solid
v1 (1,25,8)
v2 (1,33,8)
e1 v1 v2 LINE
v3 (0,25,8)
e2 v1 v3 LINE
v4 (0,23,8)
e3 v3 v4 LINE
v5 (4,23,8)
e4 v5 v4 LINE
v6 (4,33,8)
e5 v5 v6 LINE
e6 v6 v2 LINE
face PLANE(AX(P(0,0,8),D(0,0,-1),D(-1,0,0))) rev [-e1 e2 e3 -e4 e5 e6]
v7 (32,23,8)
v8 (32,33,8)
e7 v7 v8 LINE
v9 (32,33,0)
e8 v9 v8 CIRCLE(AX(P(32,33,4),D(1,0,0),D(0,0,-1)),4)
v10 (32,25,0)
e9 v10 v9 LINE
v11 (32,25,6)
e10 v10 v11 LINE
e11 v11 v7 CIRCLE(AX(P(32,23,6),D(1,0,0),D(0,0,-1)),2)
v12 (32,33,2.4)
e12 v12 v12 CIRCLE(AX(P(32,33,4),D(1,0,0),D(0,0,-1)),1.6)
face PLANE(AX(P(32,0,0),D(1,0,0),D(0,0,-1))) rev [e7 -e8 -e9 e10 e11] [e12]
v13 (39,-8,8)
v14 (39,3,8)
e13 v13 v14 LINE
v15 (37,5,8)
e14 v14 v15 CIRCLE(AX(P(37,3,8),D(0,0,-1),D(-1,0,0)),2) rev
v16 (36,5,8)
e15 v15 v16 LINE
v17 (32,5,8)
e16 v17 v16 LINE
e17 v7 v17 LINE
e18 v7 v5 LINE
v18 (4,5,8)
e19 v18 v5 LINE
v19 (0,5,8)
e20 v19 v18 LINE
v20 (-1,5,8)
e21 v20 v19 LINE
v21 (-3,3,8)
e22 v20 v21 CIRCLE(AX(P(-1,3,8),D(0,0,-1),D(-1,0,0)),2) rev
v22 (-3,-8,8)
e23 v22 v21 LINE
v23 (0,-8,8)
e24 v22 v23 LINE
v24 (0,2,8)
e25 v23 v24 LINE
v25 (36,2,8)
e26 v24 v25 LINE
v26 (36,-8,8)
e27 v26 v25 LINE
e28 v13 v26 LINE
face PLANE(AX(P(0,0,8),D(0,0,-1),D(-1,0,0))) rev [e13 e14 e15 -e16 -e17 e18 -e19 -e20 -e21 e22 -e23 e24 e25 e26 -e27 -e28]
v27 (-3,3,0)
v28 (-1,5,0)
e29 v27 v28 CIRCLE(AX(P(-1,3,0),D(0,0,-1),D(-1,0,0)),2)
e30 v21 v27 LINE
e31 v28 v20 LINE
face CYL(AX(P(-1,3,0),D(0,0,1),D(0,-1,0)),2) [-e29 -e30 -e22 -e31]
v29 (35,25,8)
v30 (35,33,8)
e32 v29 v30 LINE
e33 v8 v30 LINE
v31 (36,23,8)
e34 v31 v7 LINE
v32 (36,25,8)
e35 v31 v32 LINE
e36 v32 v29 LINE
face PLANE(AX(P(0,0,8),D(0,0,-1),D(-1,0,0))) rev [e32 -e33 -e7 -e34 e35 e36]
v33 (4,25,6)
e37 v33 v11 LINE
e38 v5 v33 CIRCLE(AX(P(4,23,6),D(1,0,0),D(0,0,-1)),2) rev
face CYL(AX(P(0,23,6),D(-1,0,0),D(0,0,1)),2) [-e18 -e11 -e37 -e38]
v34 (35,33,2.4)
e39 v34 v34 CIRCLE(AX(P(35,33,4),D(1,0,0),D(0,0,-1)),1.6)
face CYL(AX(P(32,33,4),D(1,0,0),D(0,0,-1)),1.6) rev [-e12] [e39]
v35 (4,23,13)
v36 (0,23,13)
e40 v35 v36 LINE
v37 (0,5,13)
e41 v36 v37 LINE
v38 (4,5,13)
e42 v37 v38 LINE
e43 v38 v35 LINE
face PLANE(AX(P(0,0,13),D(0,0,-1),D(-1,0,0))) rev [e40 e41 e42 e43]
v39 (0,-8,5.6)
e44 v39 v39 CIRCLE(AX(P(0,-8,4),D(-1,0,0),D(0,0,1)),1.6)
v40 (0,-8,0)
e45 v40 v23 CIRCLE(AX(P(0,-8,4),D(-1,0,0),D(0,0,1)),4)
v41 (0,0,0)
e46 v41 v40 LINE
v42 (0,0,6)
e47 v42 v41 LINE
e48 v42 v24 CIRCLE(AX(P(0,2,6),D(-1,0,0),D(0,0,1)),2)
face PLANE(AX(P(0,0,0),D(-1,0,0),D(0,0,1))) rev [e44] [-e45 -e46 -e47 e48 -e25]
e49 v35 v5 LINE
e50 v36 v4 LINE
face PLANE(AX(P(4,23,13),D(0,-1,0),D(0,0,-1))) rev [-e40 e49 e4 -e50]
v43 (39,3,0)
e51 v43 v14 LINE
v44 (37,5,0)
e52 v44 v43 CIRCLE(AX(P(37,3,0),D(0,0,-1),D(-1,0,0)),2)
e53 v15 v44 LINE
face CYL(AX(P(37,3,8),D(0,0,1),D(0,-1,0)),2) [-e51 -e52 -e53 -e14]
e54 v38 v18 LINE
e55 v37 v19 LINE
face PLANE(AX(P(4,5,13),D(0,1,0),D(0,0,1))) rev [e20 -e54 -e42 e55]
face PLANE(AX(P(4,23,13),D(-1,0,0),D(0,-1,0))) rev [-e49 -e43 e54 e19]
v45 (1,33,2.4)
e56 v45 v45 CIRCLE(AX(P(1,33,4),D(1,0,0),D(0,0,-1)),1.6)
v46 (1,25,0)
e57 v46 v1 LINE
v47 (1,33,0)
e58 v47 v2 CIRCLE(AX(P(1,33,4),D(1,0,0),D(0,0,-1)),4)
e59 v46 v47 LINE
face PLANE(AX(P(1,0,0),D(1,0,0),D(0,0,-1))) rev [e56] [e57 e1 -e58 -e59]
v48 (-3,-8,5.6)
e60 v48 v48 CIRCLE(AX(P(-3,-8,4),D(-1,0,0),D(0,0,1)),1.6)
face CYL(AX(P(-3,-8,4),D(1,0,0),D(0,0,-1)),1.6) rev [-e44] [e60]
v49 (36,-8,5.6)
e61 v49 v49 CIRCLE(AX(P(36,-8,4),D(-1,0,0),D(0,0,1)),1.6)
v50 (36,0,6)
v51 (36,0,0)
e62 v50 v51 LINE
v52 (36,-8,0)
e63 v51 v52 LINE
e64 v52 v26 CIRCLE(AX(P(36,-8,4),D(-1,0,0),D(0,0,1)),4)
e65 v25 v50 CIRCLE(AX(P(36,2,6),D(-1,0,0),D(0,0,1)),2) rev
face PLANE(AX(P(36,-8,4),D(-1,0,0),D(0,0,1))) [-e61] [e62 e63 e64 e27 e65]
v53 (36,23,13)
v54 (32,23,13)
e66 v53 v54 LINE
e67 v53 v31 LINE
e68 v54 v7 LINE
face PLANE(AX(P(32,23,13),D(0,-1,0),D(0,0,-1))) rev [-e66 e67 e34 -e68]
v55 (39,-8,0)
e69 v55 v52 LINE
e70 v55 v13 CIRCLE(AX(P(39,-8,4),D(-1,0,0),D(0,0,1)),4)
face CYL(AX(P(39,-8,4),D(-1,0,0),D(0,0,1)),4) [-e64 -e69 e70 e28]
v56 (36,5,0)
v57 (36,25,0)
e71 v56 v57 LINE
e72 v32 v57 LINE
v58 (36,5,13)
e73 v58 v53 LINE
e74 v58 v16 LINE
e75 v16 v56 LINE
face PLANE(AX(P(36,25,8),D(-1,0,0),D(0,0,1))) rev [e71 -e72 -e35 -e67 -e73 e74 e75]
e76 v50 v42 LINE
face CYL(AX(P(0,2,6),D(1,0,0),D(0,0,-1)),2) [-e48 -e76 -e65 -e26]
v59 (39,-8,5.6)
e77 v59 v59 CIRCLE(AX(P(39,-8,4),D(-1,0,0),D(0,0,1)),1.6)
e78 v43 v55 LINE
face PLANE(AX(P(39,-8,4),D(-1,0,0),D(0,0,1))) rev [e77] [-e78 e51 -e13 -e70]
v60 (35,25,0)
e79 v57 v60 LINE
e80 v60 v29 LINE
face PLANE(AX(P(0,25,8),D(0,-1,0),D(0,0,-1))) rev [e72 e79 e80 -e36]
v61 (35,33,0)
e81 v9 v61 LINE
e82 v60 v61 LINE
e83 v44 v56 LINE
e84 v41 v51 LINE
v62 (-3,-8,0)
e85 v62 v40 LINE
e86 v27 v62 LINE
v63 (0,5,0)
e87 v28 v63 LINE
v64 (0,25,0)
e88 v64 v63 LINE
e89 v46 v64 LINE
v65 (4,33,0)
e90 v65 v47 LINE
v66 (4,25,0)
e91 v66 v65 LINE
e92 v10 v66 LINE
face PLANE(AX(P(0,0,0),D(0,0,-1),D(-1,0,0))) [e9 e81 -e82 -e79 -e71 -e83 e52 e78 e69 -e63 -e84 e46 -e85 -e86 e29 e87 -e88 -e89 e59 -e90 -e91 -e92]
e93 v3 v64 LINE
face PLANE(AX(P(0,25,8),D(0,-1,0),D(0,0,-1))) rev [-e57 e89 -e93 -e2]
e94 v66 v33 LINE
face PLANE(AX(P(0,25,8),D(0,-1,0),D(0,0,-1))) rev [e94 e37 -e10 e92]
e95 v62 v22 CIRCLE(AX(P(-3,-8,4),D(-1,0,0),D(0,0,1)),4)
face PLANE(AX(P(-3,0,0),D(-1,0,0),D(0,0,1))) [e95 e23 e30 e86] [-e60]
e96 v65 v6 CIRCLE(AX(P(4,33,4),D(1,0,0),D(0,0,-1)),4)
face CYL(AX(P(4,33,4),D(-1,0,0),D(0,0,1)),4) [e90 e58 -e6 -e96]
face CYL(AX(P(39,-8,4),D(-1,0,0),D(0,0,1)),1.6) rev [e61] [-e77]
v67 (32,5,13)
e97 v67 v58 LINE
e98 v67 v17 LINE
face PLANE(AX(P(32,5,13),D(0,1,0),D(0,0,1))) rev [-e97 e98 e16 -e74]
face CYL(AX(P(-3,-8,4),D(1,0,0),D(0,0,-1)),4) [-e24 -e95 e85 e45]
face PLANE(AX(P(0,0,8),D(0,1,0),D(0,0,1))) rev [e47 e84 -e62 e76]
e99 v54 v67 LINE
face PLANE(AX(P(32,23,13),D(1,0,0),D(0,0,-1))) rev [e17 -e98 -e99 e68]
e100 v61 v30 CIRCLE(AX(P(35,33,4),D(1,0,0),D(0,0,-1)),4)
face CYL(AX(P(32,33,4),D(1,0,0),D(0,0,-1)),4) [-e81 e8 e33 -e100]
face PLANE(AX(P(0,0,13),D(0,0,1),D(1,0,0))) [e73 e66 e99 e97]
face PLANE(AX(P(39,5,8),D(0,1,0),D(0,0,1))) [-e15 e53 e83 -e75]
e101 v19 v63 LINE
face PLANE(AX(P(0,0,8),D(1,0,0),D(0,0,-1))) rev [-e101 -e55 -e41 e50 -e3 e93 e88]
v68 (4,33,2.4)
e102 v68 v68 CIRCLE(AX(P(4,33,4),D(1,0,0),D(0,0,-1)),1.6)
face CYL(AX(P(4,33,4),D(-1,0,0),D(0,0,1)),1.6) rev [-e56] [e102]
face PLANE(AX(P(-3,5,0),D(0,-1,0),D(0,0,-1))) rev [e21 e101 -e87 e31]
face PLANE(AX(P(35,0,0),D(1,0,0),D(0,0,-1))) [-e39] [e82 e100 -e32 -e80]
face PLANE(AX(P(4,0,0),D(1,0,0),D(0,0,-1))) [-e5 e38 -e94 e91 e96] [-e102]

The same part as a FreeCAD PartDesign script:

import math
import FreeCAD as App
import Part
import Sketcher


def edges_at(feature, points):
    """Names of the edges that pass closest to the given points."""
    edges = feature.Shape.Edges
    near = lambda p: min(range(len(edges)), key=lambda i: edges[i].distToShape(Part.Vertex(*p))[0])
    return sorted({f"Edge{near(p) + 1}" for p in points})


def add_polygon(sketch, points):
    """Adds a closed chain of lines whose ends are joined by coincident constraints."""
    first, n = sketch.GeometryCount, len(points)
    for a, b in zip(points, points[1:] + points[:1]):
        sketch.addGeometry(Part.LineSegment(App.Vector(*a, 0), App.Vector(*b, 0)), False)
    for i in range(n):
        sketch.addConstraint(Sketcher.Constraint("Coincident", first + i, 2, first + (i + 1) % n, 1))

doc = App.newDocument("Part")
body = doc.addObject("PartDesign::Body", "Body")

sketch1 = body.newObject("Sketcher::SketchObject", "Sketch")
sketch1.AttachmentSupport = (doc.getObject("XY_Plane"), [""])
sketch1.MapMode = "FlatFace"
add_polygon(sketch1, [(0, 25), (0, 0), (36, 0), (36, 25)])
sketch1.addConstraint([
    Sketcher.Constraint("Vertical", 0),
    Sketcher.Constraint("Horizontal", 1),
    Sketcher.Constraint("Vertical", 2),
    Sketcher.Constraint("Horizontal", 3),
    Sketcher.Constraint("Coincident", 0, 2, -1, 1),
    Sketcher.Constraint("DistanceX", 1, 1, 1, 2, 36.0),
    Sketcher.Constraint("DistanceY", 0, 2, 0, 1, 25.0),
])
pad1 = body.newObject("PartDesign::Pad", "Pad")
pad1.Profile = sketch1
pad1.Length = 8

sketch2 = body.newObject("Sketcher::SketchObject", "Sketch001")
sketch2.AttachmentSupport = (doc.getObject("YZ_Plane"), [""])
sketch2.MapMode = "FlatFace"
sketch2.AttachmentOffset = App.Placement(App.Vector(0, 0, 35), App.Rotation())
sketch2.addGeometry([
    Part.LineSegment(App.Vector(25, 8, 0), App.Vector(25, 0, 0)),
    Part.LineSegment(App.Vector(25, 0, 0), App.Vector(33, 0, 0)),
    Part.ArcOfCircle(Part.Circle(App.Vector(33, 4, 0), App.Vector(0, 0, 1), 4), math.radians(-90), math.radians(90)),
    Part.LineSegment(App.Vector(33, 8, 0), App.Vector(25, 8, 0)),
    Part.Circle(App.Vector(33, 4, 0), App.Vector(0, 0, 1), 1.6),
], False)
sketch2.addConstraint([
    Sketcher.Constraint("Coincident", 0, 2, 1, 1),
    Sketcher.Constraint("Tangent", 1, 2, 2, 1),
    Sketcher.Constraint("Tangent", 2, 2, 3, 1),
    Sketcher.Constraint("Coincident", 3, 2, 0, 1),
    Sketcher.Constraint("Vertical", 0),
    Sketcher.Constraint("Horizontal", 1),
    Sketcher.Constraint("Horizontal", 3),
    Sketcher.Constraint("Coincident", 4, 3, 2, 3),
    Sketcher.Constraint("PointOnObject", 0, 2, -1),
    Sketcher.Constraint("Equal", 3, 0),
    Sketcher.Constraint("Radius", 2, 4.0),
    Sketcher.Constraint("Diameter", 4, 3.2),
    Sketcher.Constraint("DistanceX", -1, 1, 2, 3, 33.0),
])
pad2 = body.newObject("PartDesign::Pad", "Pad001")
pad2.Profile = sketch2
pad2.Length = 3
pad2.Reversed = True

sketch3 = body.newObject("Sketcher::SketchObject", "Sketch002")
sketch3.AttachmentSupport = (doc.getObject("YZ_Plane"), [""])
sketch3.MapMode = "FlatFace"
sketch3.AttachmentOffset = App.Placement(App.Vector(0, 0, 4), App.Rotation())
sketch3.addGeometry([
    Part.LineSegment(App.Vector(25, 8, 0), App.Vector(25, 0, 0)),
    Part.LineSegment(App.Vector(25, 0, 0), App.Vector(33, 0, 0)),
    Part.ArcOfCircle(Part.Circle(App.Vector(33, 4, 0), App.Vector(0, 0, 1), 4), math.radians(-90), math.radians(90)),
    Part.LineSegment(App.Vector(33, 8, 0), App.Vector(25, 8, 0)),
    Part.Circle(App.Vector(33, 4, 0), App.Vector(0, 0, 1), 1.6),
], False)
sketch3.addConstraint([
    Sketcher.Constraint("Coincident", 0, 2, 1, 1),
    Sketcher.Constraint("Tangent", 1, 2, 2, 1),
    Sketcher.Constraint("Tangent", 2, 2, 3, 1),
    Sketcher.Constraint("Coincident", 3, 2, 0, 1),
    Sketcher.Constraint("Vertical", 0),
    Sketcher.Constraint("Horizontal", 1),
    Sketcher.Constraint("Horizontal", 3),
    Sketcher.Constraint("Coincident", 4, 3, 2, 3),
    Sketcher.Constraint("PointOnObject", 0, 2, -1),
    Sketcher.Constraint("Equal", 3, 0),
    Sketcher.Constraint("Radius", 2, 4.0),
    Sketcher.Constraint("Diameter", 4, 3.2),
    Sketcher.Constraint("DistanceX", -1, 1, 2, 3, 33.0),
])
pad3 = body.newObject("PartDesign::Pad", "Pad002")
pad3.Profile = sketch3
pad3.Length = 3
pad3.Reversed = True

sketch4 = body.newObject("Sketcher::SketchObject", "Sketch003")
sketch4.AttachmentSupport = (doc.getObject("YZ_Plane"), [""])
sketch4.MapMode = "FlatFace"
sketch4.addGeometry([
    Part.LineSegment(App.Vector(-8, 8, 0), App.Vector(5, 8, 0)),
    Part.LineSegment(App.Vector(5, 8, 0), App.Vector(5, 0, 0)),
    Part.LineSegment(App.Vector(5, 0, 0), App.Vector(-8, 0, 0)),
    Part.ArcOfCircle(Part.Circle(App.Vector(-8, 4, 0), App.Vector(0, 0, 1), 4), math.radians(90), math.radians(270)),
    Part.Circle(App.Vector(-8, 4, 0), App.Vector(0, 0, 1), 1.6),
], False)
sketch4.addConstraint([
    Sketcher.Constraint("Coincident", 0, 2, 1, 1),
    Sketcher.Constraint("Coincident", 1, 2, 2, 1),
    Sketcher.Constraint("Tangent", 2, 2, 3, 2),
    Sketcher.Constraint("Tangent", 3, 1, 0, 1),
    Sketcher.Constraint("Horizontal", 0),
    Sketcher.Constraint("Vertical", 1),
    Sketcher.Constraint("Horizontal", 2),
    Sketcher.Constraint("Coincident", 4, 3, 3, 3),
    Sketcher.Constraint("PointOnObject", 1, 2, -1),
    Sketcher.Constraint("Radius", 3, 4.0),
    Sketcher.Constraint("Diameter", 4, 3.2),
    Sketcher.Constraint("DistanceX", 0, 1, 0, 2, 13.0),
    Sketcher.Constraint("DistanceX", 3, 3, -1, 1, 8.0),
])
pad4 = body.newObject("PartDesign::Pad", "Pad003")
pad4.Profile = sketch4
pad4.Length = 3
pad4.Reversed = True
doc.recompute()

fillet = body.newObject("PartDesign::Fillet", "Fillet")
fillet.Base = (pad4, edges_at(pad4, [(-3, 5, 4)]))
fillet.Radius = 2

sketch5 = body.newObject("Sketcher::SketchObject", "Sketch004")
sketch5.AttachmentSupport = (doc.getObject("YZ_Plane"), [""])
sketch5.MapMode = "FlatFace"
sketch5.AttachmentOffset = App.Placement(App.Vector(0, 0, 39), App.Rotation())
sketch5.addGeometry([
    Part.LineSegment(App.Vector(-8, 8, 0), App.Vector(5, 8, 0)),
    Part.LineSegment(App.Vector(5, 8, 0), App.Vector(5, 0, 0)),
    Part.LineSegment(App.Vector(5, 0, 0), App.Vector(-8, 0, 0)),
    Part.ArcOfCircle(Part.Circle(App.Vector(-8, 4, 0), App.Vector(0, 0, 1), 4), math.radians(90), math.radians(270)),
    Part.Circle(App.Vector(-8, 4, 0), App.Vector(0, 0, 1), 1.6),
], False)
sketch5.addConstraint([
    Sketcher.Constraint("Coincident", 0, 2, 1, 1),
    Sketcher.Constraint("Coincident", 1, 2, 2, 1),
    Sketcher.Constraint("Tangent", 2, 2, 3, 2),
    Sketcher.Constraint("Tangent", 3, 1, 0, 1),
    Sketcher.Constraint("Horizontal", 0),
    Sketcher.Constraint("Vertical", 1),
    Sketcher.Constraint("Horizontal", 2),
    Sketcher.Constraint("Coincident", 4, 3, 3, 3),
    Sketcher.Constraint("PointOnObject", 1, 2, -1),
    Sketcher.Constraint("Radius", 3, 4.0),
    Sketcher.Constraint("Diameter", 4, 3.2),
    Sketcher.Constraint("DistanceX", 0, 1, 0, 2, 13.0),
    Sketcher.Constraint("DistanceX", 3, 3, -1, 1, 8.0),
])
pad5 = body.newObject("PartDesign::Pad", "Pad004")
pad5.Profile = sketch5
pad5.Length = 3
pad5.Reversed = True
doc.recompute()

fillet2 = body.newObject("PartDesign::Fillet", "Fillet001")
fillet2.Base = (pad5, edges_at(pad5, [(39, 5, 4)]))
fillet2.Radius = 2
doc.recompute()

fillet3 = body.newObject("PartDesign::Fillet", "Fillet002")
fillet3.Base = (fillet2, edges_at(fillet2, [(18, 0, 8)]))
fillet3.Radius = 2
doc.recompute()

fillet4 = body.newObject("PartDesign::Fillet", "Fillet003")
fillet4.Base = (fillet3, edges_at(fillet3, [(18, 25, 8)]))
fillet4.Radius = 2

sketch6 = body.newObject("Sketcher::SketchObject", "Sketch005")
sketch6.AttachmentSupport = (doc.getObject("XY_Plane"), [""])
sketch6.MapMode = "FlatFace"
sketch6.AttachmentOffset = App.Placement(App.Vector(0, 0, 8), App.Rotation())
add_polygon(sketch6, [(0, 23), (0, 5), (4, 5), (4, 23)])
add_polygon(sketch6, [(32, 23), (32, 5), (36, 5), (36, 23)])
sketch6.addConstraint([
    Sketcher.Constraint("Vertical", 0),
    Sketcher.Constraint("Horizontal", 1),
    Sketcher.Constraint("Vertical", 2),
    Sketcher.Constraint("Horizontal", 3),
    Sketcher.Constraint("Vertical", 4),
    Sketcher.Constraint("Horizontal", 5),
    Sketcher.Constraint("Vertical", 6),
    Sketcher.Constraint("Horizontal", 7),
    Sketcher.Constraint("PointOnObject", 0, 2, -2),
    Sketcher.Constraint("Horizontal", 1, 2, 4, 2),
    Sketcher.Constraint("Horizontal", 3, 2, 6, 2),
    Sketcher.Constraint("Equal", 3, 5),
    Sketcher.Constraint("DistanceX", 1, 1, 1, 2, 4.0),
    Sketcher.Constraint("DistanceY", 0, 2, 0, 1, 18.0),
    Sketcher.Constraint("DistanceY", -1, 1, 0, 2, 5.0),
    Sketcher.Constraint("DistanceX", -1, 1, 4, 2, 32.0),
])
pad6 = body.newObject("PartDesign::Pad", "Pad005")
pad6.Profile = sketch6
pad6.Length = 5

doc.recompute()
